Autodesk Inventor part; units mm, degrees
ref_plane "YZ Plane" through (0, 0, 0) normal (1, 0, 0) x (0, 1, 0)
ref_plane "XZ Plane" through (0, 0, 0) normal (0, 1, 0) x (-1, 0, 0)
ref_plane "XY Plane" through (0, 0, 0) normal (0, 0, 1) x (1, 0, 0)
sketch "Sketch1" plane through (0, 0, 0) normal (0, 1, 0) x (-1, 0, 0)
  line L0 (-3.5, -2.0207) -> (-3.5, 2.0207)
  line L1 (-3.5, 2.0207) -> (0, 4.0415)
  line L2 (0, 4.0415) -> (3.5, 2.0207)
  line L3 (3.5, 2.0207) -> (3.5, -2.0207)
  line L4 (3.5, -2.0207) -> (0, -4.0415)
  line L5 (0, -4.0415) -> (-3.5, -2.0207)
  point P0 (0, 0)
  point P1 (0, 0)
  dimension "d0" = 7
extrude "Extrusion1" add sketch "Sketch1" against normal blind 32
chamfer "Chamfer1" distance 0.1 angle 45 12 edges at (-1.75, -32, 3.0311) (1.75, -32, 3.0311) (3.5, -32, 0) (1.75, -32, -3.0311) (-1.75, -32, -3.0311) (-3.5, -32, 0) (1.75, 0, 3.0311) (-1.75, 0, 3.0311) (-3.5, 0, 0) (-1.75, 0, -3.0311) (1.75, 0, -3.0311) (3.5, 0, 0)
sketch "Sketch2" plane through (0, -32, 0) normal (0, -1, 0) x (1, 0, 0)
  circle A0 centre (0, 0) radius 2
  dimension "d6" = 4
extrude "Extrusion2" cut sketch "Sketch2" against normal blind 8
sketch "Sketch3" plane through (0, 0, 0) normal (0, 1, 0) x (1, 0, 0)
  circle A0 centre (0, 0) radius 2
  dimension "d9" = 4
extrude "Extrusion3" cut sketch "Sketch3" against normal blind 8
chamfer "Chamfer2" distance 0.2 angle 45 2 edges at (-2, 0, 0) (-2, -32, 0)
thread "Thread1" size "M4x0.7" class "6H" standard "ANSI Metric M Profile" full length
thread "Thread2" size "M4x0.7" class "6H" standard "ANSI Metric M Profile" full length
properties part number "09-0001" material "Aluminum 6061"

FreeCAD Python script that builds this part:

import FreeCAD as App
import Part
import Sketcher

V = App.Vector
Q = App.Units.Quantity


def edges_at(feature, points):
    """Names of the edges that pass closest to the given points."""
    edges = feature.Shape.Edges
    near = lambda p: min(range(len(edges)), key=lambda i: edges[i].distToShape(Part.Vertex(*p))[0])
    return sorted({f"Edge{near(p) + 1}" for p in points})

doc = App.newDocument("Part")
body = doc.addObject("PartDesign::Body", "Body")

# Sketch on XZ plane
sketch1 = doc.addObject("Sketcher::SketchObject", "Sketch")
body.addObject(sketch1)
sketch1.AttachmentSupport = (doc.XZ_Plane, [""])
sketch1.MapMode = "FlatFace"
sketch1.addGeometry(Part.LineSegment(V(3.5, 2.0207, 0), V(3.5, -2.0207, 0)), False)
sketch1.addGeometry(Part.LineSegment(V(3.5, -2.0207, 0), V(0, -4.0415, 0)), False)
sketch1.addGeometry(Part.LineSegment(V(0, -4.0415, 0), V(-3.5, -2.0207, 0)), False)
sketch1.addGeometry(Part.LineSegment(V(-3.5, -2.0207, 0), V(-3.5, 2.0207, 0)), False)
sketch1.addGeometry(Part.LineSegment(V(-3.5, 2.0207, 0), V(0, 4.0415, 0)), False)
sketch1.addGeometry(Part.LineSegment(V(0, 4.0415, 0), V(3.5, 2.0207, 0)), False)
sketch1.addConstraint(Sketcher.Constraint("Coincident", 0, 2, 1, 1))
sketch1.addConstraint(Sketcher.Constraint("Coincident", 1, 2, 2, 1))
sketch1.addConstraint(Sketcher.Constraint("Coincident", 2, 2, 3, 1))
sketch1.addConstraint(Sketcher.Constraint("Coincident", 3, 2, 4, 1))
sketch1.addConstraint(Sketcher.Constraint("Coincident", 4, 2, 5, 1))
sketch1.addConstraint(Sketcher.Constraint("Coincident", 5, 2, 0, 1))
sketch1.addConstraint(Sketcher.Constraint("Vertical", 0))
sketch1.addConstraint(Sketcher.Constraint("Vertical", 3))
sketch1.addConstraint(Sketcher.Constraint("Symmetric", 0, 2, 3, 2, -1, 1))
sketch1.addConstraint(Sketcher.Constraint("Symmetric", 1, 2, 4, 2, -1, 1))
sketch1.addConstraint(Sketcher.Constraint("PointOnObject", 1, 2, -2))
sketch1.addConstraint(Sketcher.Constraint("Parallel", 2, 5))
sketch1.addConstraint(Sketcher.Constraint("Horizontal", 0, 2, 2, 2))
sketch1.addConstraint(Sketcher.Constraint("DistanceX", 2, 2, 0, 2, 7.0))
sketch1.addConstraint(Sketcher.Constraint("Angle", 1, Q("-149.999 deg")))
sketch1.addConstraint(Sketcher.Constraint("DistanceY", 0, 2, 0, 1, 4.0414))
pad1 = doc.addObject("PartDesign::Pad", "Pad")
body.addObject(pad1)
pad1.Profile = sketch1
pad1.Length = 32
doc.recompute()

chamfer = doc.addObject("PartDesign::Chamfer", "Chamfer")
body.addObject(chamfer)
chamfer.Base = (pad1, edges_at(pad1, [
    (-1.75, -32, 3.031),
    (1.75, -32, 3.031),
    (3.5, -32, 0),
    (1.75, -32, -3.031),
    (-1.75, -32, -3.031),
    (-3.5, -32, 0),
    (1.75, 0, 3.031),
    (-1.75, 0, 3.031),
    (-3.5, 0, 0),
    (-1.75, 0, -3.031),
    (1.75, 0, -3.031),
    (3.5, 0, 0),
]))
chamfer.Size = 0.1

# Sketch on XZ plane
sketch2 = doc.addObject("Sketcher::SketchObject", "Sketch001")
body.addObject(sketch2)
sketch2.AttachmentSupport = (doc.XZ_Plane, [""])
sketch2.MapMode = "FlatFace"
sketch2.AttachmentOffset = App.Placement(V(0, 0, 32), App.Rotation())
sketch2.addGeometry(Part.Circle(V(0, 0, 0), V(0, 0, 1), 2), False)
sketch2.addConstraint(Sketcher.Constraint("Coincident", 0, 3, -1, 1))
sketch2.addConstraint(Sketcher.Constraint("Diameter", 0, 4.0))
pocket1 = doc.addObject("PartDesign::Pocket", "Pocket")
body.addObject(pocket1)
pocket1.Profile = sketch2
pocket1.Length = 8

# Sketch on XZ plane
sketch3 = doc.addObject("Sketcher::SketchObject", "Sketch002")
body.addObject(sketch3)
sketch3.AttachmentSupport = (doc.XZ_Plane, [""])
sketch3.MapMode = "FlatFace"
sketch3.addGeometry(Part.Circle(V(0, 0, 0), V(0, 0, 1), 2), False)
sketch3.addConstraint(Sketcher.Constraint("Coincident", 0, 3, -1, 1))
sketch3.addConstraint(Sketcher.Constraint("Diameter", 0, 4.0))
pocket2 = doc.addObject("PartDesign::Pocket", "Pocket001")
body.addObject(pocket2)
pocket2.Profile = sketch3
pocket2.Length = 8
pocket2.Reversed = True
doc.recompute()

chamfer2 = doc.addObject("PartDesign::Chamfer", "Chamfer001")
body.addObject(chamfer2)
chamfer2.Base = (pocket2, edges_at(pocket2, [(-2, 0, 0), (-2, -32, 0)]))
chamfer2.Size = 0.2

doc.recompute()
